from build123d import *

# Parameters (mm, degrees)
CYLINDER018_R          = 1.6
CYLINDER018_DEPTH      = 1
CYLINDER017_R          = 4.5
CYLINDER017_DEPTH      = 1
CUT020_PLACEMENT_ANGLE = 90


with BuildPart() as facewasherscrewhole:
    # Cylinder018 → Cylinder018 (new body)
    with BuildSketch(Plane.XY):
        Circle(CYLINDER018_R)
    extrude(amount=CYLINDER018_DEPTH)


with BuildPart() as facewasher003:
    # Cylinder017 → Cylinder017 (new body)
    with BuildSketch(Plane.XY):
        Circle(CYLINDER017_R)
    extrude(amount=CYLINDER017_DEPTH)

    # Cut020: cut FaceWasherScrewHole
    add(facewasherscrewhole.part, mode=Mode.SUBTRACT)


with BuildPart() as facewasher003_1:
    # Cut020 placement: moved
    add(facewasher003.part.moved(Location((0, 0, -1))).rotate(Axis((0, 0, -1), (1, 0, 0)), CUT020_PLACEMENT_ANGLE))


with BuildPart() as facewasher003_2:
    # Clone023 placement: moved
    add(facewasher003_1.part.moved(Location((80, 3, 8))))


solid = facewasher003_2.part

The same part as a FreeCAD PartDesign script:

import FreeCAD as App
import Part
import Sketcher

V = App.Vector

doc = App.newDocument("Part")
body = doc.addObject("PartDesign::Body", "Body")

sketch1 = doc.addObject("Sketcher::SketchObject", "Sketch")
body.addObject(sketch1)
sketch1.AttachmentSupport = (doc.XY_Plane, [""])
sketch1.MapMode = "FlatFace"
sketch1.addGeometry(Part.Circle(V(0, 0, 0), V(0, 0, 1), 1.6), False)
sketch1.addConstraint(Sketcher.Constraint("Coincident", 0, 3, -1, 1))
sketch1.addConstraint(Sketcher.Constraint("Diameter", 0, 3.2))
pad1 = doc.addObject("PartDesign::Pad", "Pad")
body.addObject(pad1)
pad1.Profile = sketch1
pad1.Length = 1
body2 = doc.addObject("PartDesign::Body", "Body001")

sketch2 = doc.addObject("Sketcher::SketchObject", "Sketch001")
body2.addObject(sketch2)
sketch2.AttachmentSupport = (doc.getObject("XY_Plane001"), [""])
sketch2.MapMode = "FlatFace"
sketch2.addGeometry(Part.Circle(V(0, 0, 0), V(0, 0, 1), 4.5), False)
sketch2.addConstraint(Sketcher.Constraint("Coincident", 0, 3, -1, 1))
sketch2.addConstraint(Sketcher.Constraint("Diameter", 0, 9.0))
pad2 = doc.addObject("PartDesign::Pad", "Pad001")
body2.addObject(pad2)
pad2.Profile = sketch2
pad2.Length = 1
doc.recompute()

boolean = doc.addObject("PartDesign::Boolean", "Boolean")
body2.addObject(boolean)
boolean.Type = "Cut"
boolean.addObjects([body])
body3 = doc.addObject("PartDesign::Body", "Body002")
doc.recompute()

body2.Placement = App.Placement(V(0, 0, -1), App.Rotation(V(1, 0, 0), 90))
boolean2 = doc.addObject("PartDesign::Boolean", "Boolean001")
body3.addObject(boolean2)
boolean2.Type = "Fuse"
boolean2.addObjects([body2])
body4 = doc.addObject("PartDesign::Body", "Body003")
doc.recompute()

body3.Placement = App.Placement(V(80, 3, 8), App.Rotation(V(0, 0, 1), 0))
boolean3 = doc.addObject("PartDesign::Boolean", "Boolean002")
body4.addObject(boolean3)
boolean3.Type = "Fuse"
boolean3.addObjects([body3])

doc.recompute()
